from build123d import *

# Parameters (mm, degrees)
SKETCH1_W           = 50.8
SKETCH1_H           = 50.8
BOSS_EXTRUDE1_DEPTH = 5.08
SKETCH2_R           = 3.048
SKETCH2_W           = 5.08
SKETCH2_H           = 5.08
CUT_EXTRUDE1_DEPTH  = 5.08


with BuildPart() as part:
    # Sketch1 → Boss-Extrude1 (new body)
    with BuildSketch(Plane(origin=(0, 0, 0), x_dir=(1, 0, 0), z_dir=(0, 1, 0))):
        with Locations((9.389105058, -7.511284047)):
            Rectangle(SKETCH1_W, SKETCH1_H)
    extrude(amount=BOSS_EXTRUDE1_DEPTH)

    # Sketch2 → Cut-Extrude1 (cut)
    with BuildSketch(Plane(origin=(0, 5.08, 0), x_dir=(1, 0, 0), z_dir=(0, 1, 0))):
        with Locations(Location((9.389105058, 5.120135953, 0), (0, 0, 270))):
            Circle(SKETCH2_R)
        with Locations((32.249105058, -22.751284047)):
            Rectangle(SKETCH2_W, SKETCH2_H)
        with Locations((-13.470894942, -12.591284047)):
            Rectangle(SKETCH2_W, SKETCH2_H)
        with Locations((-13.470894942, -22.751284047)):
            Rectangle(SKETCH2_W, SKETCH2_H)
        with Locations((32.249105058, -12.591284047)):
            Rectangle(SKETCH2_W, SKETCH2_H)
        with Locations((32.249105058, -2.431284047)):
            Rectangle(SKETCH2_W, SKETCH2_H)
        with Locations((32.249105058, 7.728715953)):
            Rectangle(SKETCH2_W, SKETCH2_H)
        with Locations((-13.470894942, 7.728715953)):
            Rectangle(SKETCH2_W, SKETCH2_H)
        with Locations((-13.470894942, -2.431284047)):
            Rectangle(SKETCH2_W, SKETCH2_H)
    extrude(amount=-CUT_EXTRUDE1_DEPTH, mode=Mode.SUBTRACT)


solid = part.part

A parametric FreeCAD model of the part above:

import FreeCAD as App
import Part
import Sketcher
from FreeCAD import Vector
Q = App.Units.Quantity

doc = App.newDocument("Part")
params = doc.addObject("Spreadsheet::Sheet", "Params")
for row, (alias, value) in enumerate([
    ("sketch1_width", "2 in"),
    ("pad1_length", "0.2 in"),
    ("sketch2_diameter", "0.24 in"),
    ("sketch2_width", "0.2 in"),
    ("pocket1_length", "0.2 in"),
], start=1):
    params.set(f"A{row}", alias)
    params.set(f"B{row}", "=" + value)
    params.setAlias(f"B{row}", alias)

body = doc.addObject("PartDesign::Body", "Body")

# Sketch on XZ plane
sketch1 = doc.addObject("Sketcher::SketchObject", "Sketch")
body.addObject(sketch1)
sketch1.AttachmentSupport = (doc.XZ_Plane, [""])
sketch1.MapMode = "FlatFace"
sketch1.addGeometry(Part.LineSegment(Vector(-16, -18, 0), Vector(-16, 33, 0)), False)
sketch1.addGeometry(Part.LineSegment(Vector(-16, 33, 0), Vector(35, 33, 0)), False)
sketch1.addGeometry(Part.LineSegment(Vector(35, 33, 0), Vector(35, -18, 0)), False)
sketch1.addGeometry(Part.LineSegment(Vector(35, -18, 0), Vector(-16, -18, 0)), False)
sketch1.addConstraint(Sketcher.Constraint("Coincident", 0, 2, 1, 1))
sketch1.addConstraint(Sketcher.Constraint("Coincident", 1, 2, 2, 1))
sketch1.addConstraint(Sketcher.Constraint("Coincident", 2, 2, 3, 1))
sketch1.addConstraint(Sketcher.Constraint("Coincident", 3, 2, 0, 1))
sketch1.addConstraint(Sketcher.Constraint("Vertical", 0))
sketch1.addConstraint(Sketcher.Constraint("Horizontal", 1))
sketch1.addConstraint(Sketcher.Constraint("Vertical", 2))
sketch1.addConstraint(Sketcher.Constraint("Horizontal", 3))
sketch1.addConstraint(Sketcher.Constraint("Equal", 3, 0))
sketch1.addConstraint(Sketcher.Constraint("DistanceX", 1, 1, 1, 2, Q("2 in")))
sketch1.addConstraint(Sketcher.Constraint("DistanceX", 0, 2, -1, 1, Q("16.010895 mm")))
sketch1.addConstraint(Sketcher.Constraint("DistanceY", -1, 1, 0, 2, Q("32.911284 mm")))
sketch1.setExpression("Constraints[9]", "Params.sketch1_width")
pad1 = doc.addObject("PartDesign::Pad", "Pad")
body.addObject(pad1)
pad1.Profile = sketch1
pad1.setExpression("Length", "Params.pad1_length")
pad1.Reversed = True

# Sketch on XZ plane
sketch2 = doc.addObject("Sketcher::SketchObject", "Sketch001")
body.addObject(sketch2)
sketch2.AttachmentSupport = (doc.XZ_Plane, [""])
sketch2.MapMode = "FlatFace"
sketch2.AttachmentOffset = App.Placement(Vector(0, 0, -0.2 * 25.4), App.Rotation())
sketch2.addGeometry(Part.Circle(Vector(9.4, -5.1, 0), Vector(0, 0, 1), 3), False)
sketch2.addGeometry(Part.LineSegment(Vector(29.7, 20.2, 0), Vector(29.7, 25.3, 0)), False)
sketch2.addGeometry(Part.LineSegment(Vector(29.7, 25.3, 0), Vector(34.8, 25.3, 0)), False)
sketch2.addGeometry(Part.LineSegment(Vector(34.8, 25.3, 0), Vector(34.8, 20.2, 0)), False)
sketch2.addGeometry(Part.LineSegment(Vector(34.8, 20.2, 0), Vector(29.7, 20.2, 0)), False)
sketch2.addGeometry(Part.LineSegment(Vector(-16, 10.1, 0), Vector(-16, 15.1, 0)), False)
sketch2.addGeometry(Part.LineSegment(Vector(-16, 15.1, 0), Vector(-10.9, 15.1, 0)), False)
sketch2.addGeometry(Part.LineSegment(Vector(-10.9, 15.1, 0), Vector(-10.9, 10.1, 0)), False)
sketch2.addGeometry(Part.LineSegment(Vector(-10.9, 10.1, 0), Vector(-16, 10.1, 0)), False)
sketch2.addGeometry(Part.LineSegment(Vector(-16, 20.2, 0), Vector(-16, 25.3, 0)), False)
sketch2.addGeometry(Part.LineSegment(Vector(-16, 25.3, 0), Vector(-10.9, 25.3, 0)), False)
sketch2.addGeometry(Part.LineSegment(Vector(-10.9, 25.3, 0), Vector(-10.9, 20.2, 0)), False)
sketch2.addGeometry(Part.LineSegment(Vector(-10.9, 20.2, 0), Vector(-16, 20.2, 0)), False)
sketch2.addGeometry(Part.LineSegment(Vector(29.7, 10.1, 0), Vector(29.7, 15.1, 0)), False)
sketch2.addGeometry(Part.LineSegment(Vector(29.7, 15.1, 0), Vector(34.8, 15.1, 0)), False)
sketch2.addGeometry(Part.LineSegment(Vector(34.8, 15.1, 0), Vector(34.8, 10.1, 0)), False)
sketch2.addGeometry(Part.LineSegment(Vector(34.8, 10.1, 0), Vector(29.7, 10.1, 0)), False)
sketch2.addGeometry(Part.LineSegment(Vector(29.7, -0.1, 0), Vector(29.7, 5, 0)), False)
sketch2.addGeometry(Part.LineSegment(Vector(29.7, 5, 0), Vector(34.8, 5, 0)), False)
sketch2.addGeometry(Part.LineSegment(Vector(34.8, 5, 0), Vector(34.8, -0.1, 0)), False)
sketch2.addGeometry(Part.LineSegment(Vector(34.8, -0.1, 0), Vector(29.7, -0.1, 0)), False)
sketch2.addGeometry(Part.LineSegment(Vector(29.7, -10.3, 0), Vector(29.7, -5.2, 0)), False)
sketch2.addGeometry(Part.LineSegment(Vector(29.7, -5.2, 0), Vector(34.8, -5.2, 0)), False)
sketch2.addGeometry(Part.LineSegment(Vector(34.8, -5.2, 0), Vector(34.8, -10.3, 0)), False)
sketch2.addGeometry(Part.LineSegment(Vector(34.8, -10.3, 0), Vector(29.7, -10.3, 0)), False)
sketch2.addGeometry(Part.LineSegment(Vector(-16, -10.3, 0), Vector(-16, -5.2, 0)), False)
sketch2.addGeometry(Part.LineSegment(Vector(-16, -5.2, 0), Vector(-10.9, -5.2, 0)), False)
sketch2.addGeometry(Part.LineSegment(Vector(-10.9, -5.2, 0), Vector(-10.9, -10.3, 0)), False)
sketch2.addGeometry(Part.LineSegment(Vector(-10.9, -10.3, 0), Vector(-16, -10.3, 0)), False)
sketch2.addGeometry(Part.LineSegment(Vector(-16, -0.1, 0), Vector(-16, 5, 0)), False)
sketch2.addGeometry(Part.LineSegment(Vector(-16, 5, 0), Vector(-10.9, 5, 0)), False)
sketch2.addGeometry(Part.LineSegment(Vector(-10.9, 5, 0), Vector(-10.9, -0.1, 0)), False)
sketch2.addGeometry(Part.LineSegment(Vector(-10.9, -0.1, 0), Vector(-16, -0.1, 0)), False)
sketch2.addConstraint(Sketcher.Constraint("Coincident", 1, 2, 2, 1))
sketch2.addConstraint(Sketcher.Constraint("Coincident", 2, 2, 3, 1))
sketch2.addConstraint(Sketcher.Constraint("Coincident", 3, 2, 4, 1))
sketch2.addConstraint(Sketcher.Constraint("Coincident", 4, 2, 1, 1))
sketch2.addConstraint(Sketcher.Constraint("Coincident", 5, 2, 6, 1))
sketch2.addConstraint(Sketcher.Constraint("Coincident", 6, 2, 7, 1))
sketch2.addConstraint(Sketcher.Constraint("Coincident", 7, 2, 8, 1))
sketch2.addConstraint(Sketcher.Constraint("Coincident", 8, 2, 5, 1))
sketch2.addConstraint(Sketcher.Constraint("Coincident", 9, 2, 10, 1))
sketch2.addConstraint(Sketcher.Constraint("Coincident", 10, 2, 11, 1))
sketch2.addConstraint(Sketcher.Constraint("Coincident", 11, 2, 12, 1))
sketch2.addConstraint(Sketcher.Constraint("Coincident", 12, 2, 9, 1))
sketch2.addConstraint(Sketcher.Constraint("Coincident", 13, 2, 14, 1))
sketch2.addConstraint(Sketcher.Constraint("Coincident", 14, 2, 15, 1))
sketch2.addConstraint(Sketcher.Constraint("Coincident", 15, 2, 16, 1))
sketch2.addConstraint(Sketcher.Constraint("Coincident", 16, 2, 13, 1))
sketch2.addConstraint(Sketcher.Constraint("Coincident", 17, 2, 18, 1))
sketch2.addConstraint(Sketcher.Constraint("Coincident", 18, 2, 19, 1))
sketch2.addConstraint(Sketcher.Constraint("Coincident", 19, 2, 20, 1))
sketch2.addConstraint(Sketcher.Constraint("Coincident", 20, 2, 17, 1))
sketch2.addConstraint(Sketcher.Constraint("Coincident", 21, 2, 22, 1))
sketch2.addConstraint(Sketcher.Constraint("Coincident", 22, 2, 23, 1))
sketch2.addConstraint(Sketcher.Constraint("Coincident", 23, 2, 24, 1))
sketch2.addConstraint(Sketcher.Constraint("Coincident", 24, 2, 21, 1))
sketch2.addConstraint(Sketcher.Constraint("Coincident", 25, 2, 26, 1))
sketch2.addConstraint(Sketcher.Constraint("Coincident", 26, 2, 27, 1))
sketch2.addConstraint(Sketcher.Constraint("Coincident", 27, 2, 28, 1))
sketch2.addConstraint(Sketcher.Constraint("Coincident", 28, 2, 25, 1))
sketch2.addConstraint(Sketcher.Constraint("Coincident", 29, 2, 30, 1))
sketch2.addConstraint(Sketcher.Constraint("Coincident", 30, 2, 31, 1))
sketch2.addConstraint(Sketcher.Constraint("Coincident", 31, 2, 32, 1))
sketch2.addConstraint(Sketcher.Constraint("Coincident", 32, 2, 29, 1))
sketch2.addConstraint(Sketcher.Constraint("Vertical", 1))
sketch2.addConstraint(Sketcher.Constraint("Horizontal", 2))
sketch2.addConstraint(Sketcher.Constraint("Vertical", 3))
sketch2.addConstraint(Sketcher.Constraint("Horizontal", 4))
sketch2.addConstraint(Sketcher.Constraint("Vertical", 5))
sketch2.addConstraint(Sketcher.Constraint("Horizontal", 6))
sketch2.addConstraint(Sketcher.Constraint("Vertical", 7))
sketch2.addConstraint(Sketcher.Constraint("Horizontal", 8))
sketch2.addConstraint(Sketcher.Constraint("Vertical", 9))
sketch2.addConstraint(Sketcher.Constraint("Horizontal", 10))
sketch2.addConstraint(Sketcher.Constraint("Vertical", 11))
sketch2.addConstraint(Sketcher.Constraint("Horizontal", 12))
sketch2.addConstraint(Sketcher.Constraint("Vertical", 13))
sketch2.addConstraint(Sketcher.Constraint("Horizontal", 14))
sketch2.addConstraint(Sketcher.Constraint("Vertical", 15))
sketch2.addConstraint(Sketcher.Constraint("Horizontal", 16))
sketch2.addConstraint(Sketcher.Constraint("Vertical", 17))
sketch2.addConstraint(Sketcher.Constraint("Horizontal", 18))
sketch2.addConstraint(Sketcher.Constraint("Vertical", 19))
sketch2.addConstraint(Sketcher.Constraint("Horizontal", 20))
sketch2.addConstraint(Sketcher.Constraint("Vertical", 21))
sketch2.addConstraint(Sketcher.Constraint("Horizontal", 22))
sketch2.addConstraint(Sketcher.Constraint("Vertical", 23))
sketch2.addConstraint(Sketcher.Constraint("Horizontal", 24))
sketch2.addConstraint(Sketcher.Constraint("Vertical", 25))
sketch2.addConstraint(Sketcher.Constraint("Horizontal", 26))
sketch2.addConstraint(Sketcher.Constraint("Vertical", 27))
sketch2.addConstraint(Sketcher.Constraint("Horizontal", 28))
sketch2.addConstraint(Sketcher.Constraint("Vertical", 29))
sketch2.addConstraint(Sketcher.Constraint("Horizontal", 30))
sketch2.addConstraint(Sketcher.Constraint("Vertical", 31))
sketch2.addConstraint(Sketcher.Constraint("Horizontal", 32))
sketch2.addConstraint(Sketcher.Constraint("Horizontal", 2, 2, 9, 2))
sketch2.addConstraint(Sketcher.Constraint("Horizontal", 4, 2, 11, 2))
sketch2.addConstraint(Sketcher.Constraint("Horizontal", 6, 2, 13, 2))
sketch2.addConstraint(Sketcher.Constraint("Horizontal", 8, 2, 15, 2))
sketch2.addConstraint(Sketcher.Constraint("Horizontal", 22, 2, 25, 2))
sketch2.addConstraint(Sketcher.Constraint("Horizontal", 24, 2, 27, 2))
sketch2.addConstraint(Sketcher.Constraint("Horizontal", 18, 2, 29, 2))
sketch2.addConstraint(Sketcher.Constraint("Horizontal", 20, 2, 31, 2))
sketch2.addConstraint(Sketcher.Constraint("Vertical", 8, 2, 9, 2))
sketch2.addConstraint(Sketcher.Constraint("Vertical", 7, 2, 10, 2))
sketch2.addConstraint(Sketcher.Constraint("Vertical", 4, 2, 13, 2))
sketch2.addConstraint(Sketcher.Constraint("Vertical", 3, 2, 14, 2))
sketch2.addConstraint(Sketcher.Constraint("Vertical", 16, 2, 17, 2))
sketch2.addConstraint(Sketcher.Constraint("Vertical", 15, 2, 18, 2))
sketch2.addConstraint(Sketcher.Constraint("Vertical", 20, 2, 21, 2))
sketch2.addConstraint(Sketcher.Constraint("Vertical", 19, 2, 22, 2))
sketch2.addConstraint(Sketcher.Constraint("Vertical", 12, 2, 25, 2))
sketch2.addConstraint(Sketcher.Constraint("Vertical", 11, 2, 26, 2))
sketch2.addConstraint(Sketcher.Constraint("Vertical", 28, 2, 29, 2))
sketch2.addConstraint(Sketcher.Constraint("Vertical", 27, 2, 30, 2))
sketch2.addConstraint(Sketcher.Constraint("Equal", 4, 6))
sketch2.addConstraint(Sketcher.Constraint("Equal", 32, 1))
sketch2.addConstraint(Sketcher.Constraint("Equal", 3, 5))
sketch2.addConstraint(Sketcher.Constraint("Equal", 15, 17))
sketch2.addConstraint(Sketcher.Constraint("Equal", 19, 21))
sketch2.addConstraint(Sketcher.Constraint("Diameter", 0, Q("0.24 in")))
sketch2.addConstraint(Sketcher.Constraint("DistanceX", 2, 1, 2, 2, Q("0.2 in")))
sketch2.addConstraint(Sketcher.Constraint("DistanceX", 0, 3, 2, 2, Q("1 in")))
sketch2.addConstraint(Sketcher.Constraint("DistanceX", 5, 2, 0, 3, Q("1 in")))
sketch2.addConstraint(Sketcher.Constraint("DistanceY", 25, 2, 12, 2, Q("1 in")))
sketch2.addConstraint(Sketcher.Constraint("DistanceY", 5, 2, 4, 2, Q("0.2 in")))
sketch2.addConstraint(Sketcher.Constraint("DistanceY", 17, 2, 16, 2, Q("0.2 in")))
sketch2.addConstraint(Sketcher.Constraint("DistanceY", 0, 3, 1, 2, Q("1.1973 in")))
sketch2.addConstraint(Sketcher.Constraint("DistanceX", -1, 1, 0, 3, Q("9.389105 mm")))
sketch2.addConstraint(Sketcher.Constraint("DistanceY", 0, 3, -1, 1, Q("5.120136 mm")))
sketch2.setExpression("Constraints[89]", "Params.sketch2_diameter")
sketch2.setExpression("Constraints[90]", "Params.sketch2_width")
pocket1 = doc.addObject("PartDesign::Pocket", "Pocket")
body.addObject(pocket1)
pocket1.Profile = sketch2
pocket1.setExpression("Length", "Params.pocket1_length")
pocket1.Reversed = True

doc.recompute()
